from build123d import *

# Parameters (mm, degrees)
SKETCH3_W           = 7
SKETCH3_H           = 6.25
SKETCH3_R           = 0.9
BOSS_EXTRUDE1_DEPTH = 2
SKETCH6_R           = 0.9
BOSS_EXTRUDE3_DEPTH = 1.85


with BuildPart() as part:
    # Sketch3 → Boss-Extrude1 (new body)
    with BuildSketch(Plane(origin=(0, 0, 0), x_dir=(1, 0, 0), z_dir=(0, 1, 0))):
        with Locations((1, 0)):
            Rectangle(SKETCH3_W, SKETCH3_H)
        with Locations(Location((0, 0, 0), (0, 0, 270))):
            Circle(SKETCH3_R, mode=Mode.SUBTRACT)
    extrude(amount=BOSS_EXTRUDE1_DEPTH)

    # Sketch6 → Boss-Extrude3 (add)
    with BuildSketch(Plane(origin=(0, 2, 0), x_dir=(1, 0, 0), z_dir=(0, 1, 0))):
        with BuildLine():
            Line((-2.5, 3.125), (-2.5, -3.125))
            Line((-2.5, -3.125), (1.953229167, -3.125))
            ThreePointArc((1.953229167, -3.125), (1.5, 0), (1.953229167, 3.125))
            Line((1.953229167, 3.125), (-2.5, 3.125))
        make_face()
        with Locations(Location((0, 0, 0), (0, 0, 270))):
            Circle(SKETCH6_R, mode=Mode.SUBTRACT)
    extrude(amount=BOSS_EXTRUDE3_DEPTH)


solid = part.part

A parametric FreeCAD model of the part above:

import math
import FreeCAD as App
import Part
import Sketcher
Q = App.Units.Quantity

doc = App.newDocument("Part")
body = doc.addObject("PartDesign::Body", "Body")

sketch1 = body.newObject("Sketcher::SketchObject", "Sketch")
sketch1.AttachmentSupport = (doc.getObject("XZ_Plane"), [""])
sketch1.MapMode = "FlatFace"
sketch1.addGeometry(Part.LineSegment(App.Vector(-2.5, -3.1, 0), App.Vector(-2.5, 3.1, 0)), False)
sketch1.addGeometry(Part.LineSegment(App.Vector(-2.5, 3.1, 0), App.Vector(4.5, 3.1, 0)), False)
sketch1.addGeometry(Part.LineSegment(App.Vector(4.5, 3.1, 0), App.Vector(4.5, -3.1, 0)), False)
sketch1.addGeometry(Part.LineSegment(App.Vector(4.5, -3.1, 0), App.Vector(-2.5, -3.1, 0)), False)
sketch1.addGeometry(Part.Circle(App.Vector(0, 0, 0), App.Vector(0, 0, 1), 0.9), False)
sketch1.addConstraint(Sketcher.Constraint("Coincident", 0, 2, 1, 1))
sketch1.addConstraint(Sketcher.Constraint("Coincident", 1, 2, 2, 1))
sketch1.addConstraint(Sketcher.Constraint("Coincident", 2, 2, 3, 1))
sketch1.addConstraint(Sketcher.Constraint("Coincident", 3, 2, 0, 1))
sketch1.addConstraint(Sketcher.Constraint("Vertical", 0))
sketch1.addConstraint(Sketcher.Constraint("Horizontal", 1))
sketch1.addConstraint(Sketcher.Constraint("Vertical", 2))
sketch1.addConstraint(Sketcher.Constraint("Horizontal", 3))
sketch1.addConstraint(Sketcher.Constraint("Coincident", 4, 3, -1, 1))
sketch1.addConstraint(Sketcher.Constraint("Diameter", 4, Q("1.8 mm")))
sketch1.addConstraint(Sketcher.Constraint("DistanceX", 1, 1, 1, 2, Q("7 mm")))
sketch1.addConstraint(Sketcher.Constraint("DistanceY", 0, 1, 0, 2, Q("6.25 mm")))
sketch1.addConstraint(Sketcher.Constraint("DistanceX", 0, 2, -1, 1, Q("2.5 mm")))
sketch1.addConstraint(Sketcher.Constraint("DistanceY", -1, 1, 0, 2, Q("3.125 mm")))
pad1 = body.newObject("PartDesign::Pad", "Pad")
pad1.Profile = sketch1
pad1.Length = 2
pad1.Reversed = True

sketch2 = body.newObject("Sketcher::SketchObject", "Sketch001")
sketch2.AttachmentSupport = (doc.getObject("XZ_Plane"), [""])
sketch2.MapMode = "FlatFace"
sketch2.AttachmentOffset = App.Placement(App.Vector(0, 0, -2), App.Rotation())
sketch2.addGeometry(Part.LineSegment(App.Vector(-2.5, -3.1, 0), App.Vector(-2.5, 3.1, 0)), False)
sketch2.addGeometry(Part.LineSegment(App.Vector(-2.5, 3.1, 0), App.Vector(2, 3.1, 0)), False)
sketch2.addGeometry(Part.ArcOfCircle(Part.Circle(App.Vector(12.5, 0, 0), App.Vector(0, 0, 1), 11), math.radians(163), math.radians(197)), False)
sketch2.addGeometry(Part.LineSegment(App.Vector(2, -3.1, 0), App.Vector(-2.5, -3.1, 0)), False)
sketch2.addGeometry(Part.Circle(App.Vector(0, 0, 0), App.Vector(0, 0, 1), 0.9), False)
sketch2.addConstraint(Sketcher.Constraint("Coincident", 0, 2, 1, 1))
sketch2.addConstraint(Sketcher.Constraint("Coincident", 1, 2, 2, 1))
sketch2.addConstraint(Sketcher.Constraint("Coincident", 2, 2, 3, 1))
sketch2.addConstraint(Sketcher.Constraint("Coincident", 3, 2, 0, 1))
sketch2.addConstraint(Sketcher.Constraint("Vertical", 0))
sketch2.addConstraint(Sketcher.Constraint("Horizontal", 1))
sketch2.addConstraint(Sketcher.Constraint("Horizontal", 3))
sketch2.addConstraint(Sketcher.Constraint("Coincident", 4, 3, -1, 1))
sketch2.addConstraint(Sketcher.Constraint("Symmetric", 1, 2, 2, 2, -1))
sketch2.addConstraint(Sketcher.Constraint("Radius", 2, Q("11 mm")))
sketch2.addConstraint(Sketcher.Constraint("Diameter", 4, Q("1.8 mm")))
sketch2.addConstraint(Sketcher.Constraint("DistanceX", 0, 2, 2, 3, Q("15 mm")))
sketch2.addConstraint(Sketcher.Constraint("DistanceY", 0, 1, 0, 2, Q("6.25 mm")))
sketch2.addConstraint(Sketcher.Constraint("DistanceX", -1, 1, 2, 3, Q("12.5 mm")))
pad2 = body.newObject("PartDesign::Pad", "Pad001")
pad2.Profile = sketch2
pad2.Length = 1.85
pad2.Reversed = True

doc.recompute()
